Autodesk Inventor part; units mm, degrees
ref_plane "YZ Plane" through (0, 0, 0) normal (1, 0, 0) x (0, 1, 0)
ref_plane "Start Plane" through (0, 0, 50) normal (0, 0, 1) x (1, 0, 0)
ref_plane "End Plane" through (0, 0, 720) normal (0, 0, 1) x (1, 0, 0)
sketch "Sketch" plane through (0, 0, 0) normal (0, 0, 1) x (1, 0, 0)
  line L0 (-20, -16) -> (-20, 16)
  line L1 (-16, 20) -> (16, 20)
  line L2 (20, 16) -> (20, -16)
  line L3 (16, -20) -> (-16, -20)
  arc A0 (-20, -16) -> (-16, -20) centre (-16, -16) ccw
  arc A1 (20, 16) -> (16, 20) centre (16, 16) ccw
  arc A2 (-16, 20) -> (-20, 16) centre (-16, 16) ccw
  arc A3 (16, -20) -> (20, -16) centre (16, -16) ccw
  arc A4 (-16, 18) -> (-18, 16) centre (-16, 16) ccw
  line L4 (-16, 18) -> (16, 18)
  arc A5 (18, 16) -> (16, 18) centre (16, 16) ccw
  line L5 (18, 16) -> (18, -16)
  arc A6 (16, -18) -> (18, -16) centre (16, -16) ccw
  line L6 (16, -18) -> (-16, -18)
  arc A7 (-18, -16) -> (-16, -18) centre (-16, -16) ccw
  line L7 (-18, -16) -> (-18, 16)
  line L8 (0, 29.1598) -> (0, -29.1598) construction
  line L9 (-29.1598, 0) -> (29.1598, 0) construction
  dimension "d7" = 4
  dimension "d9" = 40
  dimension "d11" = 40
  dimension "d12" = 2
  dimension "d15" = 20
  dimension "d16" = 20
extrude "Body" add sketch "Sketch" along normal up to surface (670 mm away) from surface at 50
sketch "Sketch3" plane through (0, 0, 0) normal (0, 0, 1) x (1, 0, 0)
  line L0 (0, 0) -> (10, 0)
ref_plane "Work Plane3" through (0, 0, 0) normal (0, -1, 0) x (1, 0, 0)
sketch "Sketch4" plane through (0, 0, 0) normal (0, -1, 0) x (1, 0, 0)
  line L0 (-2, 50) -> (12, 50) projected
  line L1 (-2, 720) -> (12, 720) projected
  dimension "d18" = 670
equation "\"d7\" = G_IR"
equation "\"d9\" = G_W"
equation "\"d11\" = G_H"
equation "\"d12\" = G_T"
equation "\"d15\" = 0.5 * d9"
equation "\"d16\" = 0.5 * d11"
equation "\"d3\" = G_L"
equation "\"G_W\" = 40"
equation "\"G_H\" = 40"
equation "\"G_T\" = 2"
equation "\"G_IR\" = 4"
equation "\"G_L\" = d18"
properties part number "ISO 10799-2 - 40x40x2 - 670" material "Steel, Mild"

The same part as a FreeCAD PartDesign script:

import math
import FreeCAD as App
import Part
import Sketcher

doc = App.newDocument("Part")
params = doc.addObject("Spreadsheet::Sheet", "Params")
for row, (alias, value) in enumerate([
    ("sketch1_radius", "4 mm"),
    ("sketch1_radius2", "2 mm"),
    ("pad1_length", "670 mm"),
], start=1):
    params.set(f"A{row}", alias)
    params.set(f"B{row}", "=" + value)
    params.setAlias(f"B{row}", alias)

body = doc.addObject("PartDesign::Body", "Body")

# Sketch on XY plane
sketch1 = doc.addObject("Sketcher::SketchObject", "Sketch")
body.addObject(sketch1)
sketch1.AttachmentSupport = (doc.XY_Plane, [""])
sketch1.MapMode = "FlatFace"
sketch1.AttachmentOffset = App.Placement(App.Vector(0, 0, 50), App.Rotation())
sketch1.addGeometry(Part.LineSegment(App.Vector(-20, 16, 0), App.Vector(-20, -16, 0)), False)
sketch1.addGeometry(Part.ArcOfCircle(Part.Circle(App.Vector(-16, -16, 0), App.Vector(0, 0, 1), 4), math.radians(180), math.radians(270)), False)
sketch1.addGeometry(Part.LineSegment(App.Vector(-16, -20, 0), App.Vector(16, -20, 0)), False)
sketch1.addGeometry(Part.ArcOfCircle(Part.Circle(App.Vector(16, -16, 0), App.Vector(0, 0, 1), 4), math.radians(-90), math.radians(0)), False)
sketch1.addGeometry(Part.LineSegment(App.Vector(20, -16, 0), App.Vector(20, 16, 0)), False)
sketch1.addGeometry(Part.ArcOfCircle(Part.Circle(App.Vector(16, 16, 0), App.Vector(0, 0, 1), 4), math.radians(0), math.radians(90)), False)
sketch1.addGeometry(Part.LineSegment(App.Vector(16, 20, 0), App.Vector(-16, 20, 0)), False)
sketch1.addGeometry(Part.ArcOfCircle(Part.Circle(App.Vector(-16, 16, 0), App.Vector(0, 0, 1), 4), math.radians(90), math.radians(180)), False)
sketch1.addGeometry(Part.ArcOfCircle(Part.Circle(App.Vector(-16, 16, 0), App.Vector(0, 0, 1), 2), math.radians(90), math.radians(180)), False)
sketch1.addGeometry(Part.LineSegment(App.Vector(-16, 18, 0), App.Vector(16, 18, 0)), False)
sketch1.addGeometry(Part.ArcOfCircle(Part.Circle(App.Vector(16, 16, 0), App.Vector(0, 0, 1), 2), math.radians(0), math.radians(90)), False)
sketch1.addGeometry(Part.LineSegment(App.Vector(18, 16, 0), App.Vector(18, -16, 0)), False)
sketch1.addGeometry(Part.ArcOfCircle(Part.Circle(App.Vector(16, -16, 0), App.Vector(0, 0, 1), 2), math.radians(-90), math.radians(0)), False)
sketch1.addGeometry(Part.LineSegment(App.Vector(16, -18, 0), App.Vector(-16, -18, 0)), False)
sketch1.addGeometry(Part.ArcOfCircle(Part.Circle(App.Vector(-16, -16, 0), App.Vector(0, 0, 1), 2), math.radians(180), math.radians(270)), False)
sketch1.addGeometry(Part.LineSegment(App.Vector(-18, -16, 0), App.Vector(-18, 16, 0)), False)
sketch1.addConstraint(Sketcher.Constraint("Tangent", 0, 2, 1, 1))
sketch1.addConstraint(Sketcher.Constraint("Tangent", 1, 2, 2, 1))
sketch1.addConstraint(Sketcher.Constraint("Tangent", 2, 2, 3, 1))
sketch1.addConstraint(Sketcher.Constraint("Tangent", 3, 2, 4, 1))
sketch1.addConstraint(Sketcher.Constraint("Tangent", 4, 2, 5, 1))
sketch1.addConstraint(Sketcher.Constraint("Tangent", 5, 2, 6, 1))
sketch1.addConstraint(Sketcher.Constraint("Tangent", 6, 2, 7, 1))
sketch1.addConstraint(Sketcher.Constraint("Tangent", 7, 2, 0, 1))
sketch1.addConstraint(Sketcher.Constraint("Tangent", 8, 1, 9, 1))
sketch1.addConstraint(Sketcher.Constraint("Tangent", 9, 2, 10, 2))
sketch1.addConstraint(Sketcher.Constraint("Tangent", 10, 1, 11, 1))
sketch1.addConstraint(Sketcher.Constraint("Tangent", 11, 2, 12, 2))
sketch1.addConstraint(Sketcher.Constraint("Tangent", 12, 1, 13, 1))
sketch1.addConstraint(Sketcher.Constraint("Tangent", 13, 2, 14, 2))
sketch1.addConstraint(Sketcher.Constraint("Tangent", 14, 1, 15, 1))
sketch1.addConstraint(Sketcher.Constraint("Tangent", 15, 2, 8, 2))
sketch1.addConstraint(Sketcher.Constraint("Vertical", 0))
sketch1.addConstraint(Sketcher.Constraint("Horizontal", 2))
sketch1.addConstraint(Sketcher.Constraint("Vertical", 4))
sketch1.addConstraint(Sketcher.Constraint("Horizontal", 6))
sketch1.addConstraint(Sketcher.Constraint("Horizontal", 9))
sketch1.addConstraint(Sketcher.Constraint("Vertical", 11))
sketch1.addConstraint(Sketcher.Constraint("Horizontal", 13))
sketch1.addConstraint(Sketcher.Constraint("Vertical", 15))
sketch1.addConstraint(Sketcher.Constraint("Coincident", 8, 3, 7, 3))
sketch1.addConstraint(Sketcher.Constraint("Coincident", 10, 3, 5, 3))
sketch1.addConstraint(Sketcher.Constraint("Coincident", 12, 3, 3, 3))
sketch1.addConstraint(Sketcher.Constraint("Equal", 1, 3))
sketch1.addConstraint(Sketcher.Constraint("Equal", 3, 5))
sketch1.addConstraint(Sketcher.Constraint("Equal", 5, 7))
sketch1.addConstraint(Sketcher.Constraint("Equal", 12, 14))
sketch1.addConstraint(Sketcher.Constraint("Symmetric", 1, 3, 5, 3, -1, 1))
sketch1.addConstraint(Sketcher.Constraint("Equal", 13, 0))
sketch1.addConstraint(Sketcher.Constraint("Radius", 1, 4.0))
sketch1.addConstraint(Sketcher.Constraint("Radius", 8, 2.0))
sketch1.addConstraint(Sketcher.Constraint("DistanceX", 0, 2, -1, 1, 20.0))
sketch1.setExpression("Constraints[33]", "Params.sketch1_radius")
sketch1.setExpression("Constraints[34]", "Params.sketch1_radius2")
pad1 = doc.addObject("PartDesign::Pad", "Pad")
body.addObject(pad1)
pad1.Profile = sketch1
pad1.setExpression("Length", "Params.pad1_length")

doc.recompute()
